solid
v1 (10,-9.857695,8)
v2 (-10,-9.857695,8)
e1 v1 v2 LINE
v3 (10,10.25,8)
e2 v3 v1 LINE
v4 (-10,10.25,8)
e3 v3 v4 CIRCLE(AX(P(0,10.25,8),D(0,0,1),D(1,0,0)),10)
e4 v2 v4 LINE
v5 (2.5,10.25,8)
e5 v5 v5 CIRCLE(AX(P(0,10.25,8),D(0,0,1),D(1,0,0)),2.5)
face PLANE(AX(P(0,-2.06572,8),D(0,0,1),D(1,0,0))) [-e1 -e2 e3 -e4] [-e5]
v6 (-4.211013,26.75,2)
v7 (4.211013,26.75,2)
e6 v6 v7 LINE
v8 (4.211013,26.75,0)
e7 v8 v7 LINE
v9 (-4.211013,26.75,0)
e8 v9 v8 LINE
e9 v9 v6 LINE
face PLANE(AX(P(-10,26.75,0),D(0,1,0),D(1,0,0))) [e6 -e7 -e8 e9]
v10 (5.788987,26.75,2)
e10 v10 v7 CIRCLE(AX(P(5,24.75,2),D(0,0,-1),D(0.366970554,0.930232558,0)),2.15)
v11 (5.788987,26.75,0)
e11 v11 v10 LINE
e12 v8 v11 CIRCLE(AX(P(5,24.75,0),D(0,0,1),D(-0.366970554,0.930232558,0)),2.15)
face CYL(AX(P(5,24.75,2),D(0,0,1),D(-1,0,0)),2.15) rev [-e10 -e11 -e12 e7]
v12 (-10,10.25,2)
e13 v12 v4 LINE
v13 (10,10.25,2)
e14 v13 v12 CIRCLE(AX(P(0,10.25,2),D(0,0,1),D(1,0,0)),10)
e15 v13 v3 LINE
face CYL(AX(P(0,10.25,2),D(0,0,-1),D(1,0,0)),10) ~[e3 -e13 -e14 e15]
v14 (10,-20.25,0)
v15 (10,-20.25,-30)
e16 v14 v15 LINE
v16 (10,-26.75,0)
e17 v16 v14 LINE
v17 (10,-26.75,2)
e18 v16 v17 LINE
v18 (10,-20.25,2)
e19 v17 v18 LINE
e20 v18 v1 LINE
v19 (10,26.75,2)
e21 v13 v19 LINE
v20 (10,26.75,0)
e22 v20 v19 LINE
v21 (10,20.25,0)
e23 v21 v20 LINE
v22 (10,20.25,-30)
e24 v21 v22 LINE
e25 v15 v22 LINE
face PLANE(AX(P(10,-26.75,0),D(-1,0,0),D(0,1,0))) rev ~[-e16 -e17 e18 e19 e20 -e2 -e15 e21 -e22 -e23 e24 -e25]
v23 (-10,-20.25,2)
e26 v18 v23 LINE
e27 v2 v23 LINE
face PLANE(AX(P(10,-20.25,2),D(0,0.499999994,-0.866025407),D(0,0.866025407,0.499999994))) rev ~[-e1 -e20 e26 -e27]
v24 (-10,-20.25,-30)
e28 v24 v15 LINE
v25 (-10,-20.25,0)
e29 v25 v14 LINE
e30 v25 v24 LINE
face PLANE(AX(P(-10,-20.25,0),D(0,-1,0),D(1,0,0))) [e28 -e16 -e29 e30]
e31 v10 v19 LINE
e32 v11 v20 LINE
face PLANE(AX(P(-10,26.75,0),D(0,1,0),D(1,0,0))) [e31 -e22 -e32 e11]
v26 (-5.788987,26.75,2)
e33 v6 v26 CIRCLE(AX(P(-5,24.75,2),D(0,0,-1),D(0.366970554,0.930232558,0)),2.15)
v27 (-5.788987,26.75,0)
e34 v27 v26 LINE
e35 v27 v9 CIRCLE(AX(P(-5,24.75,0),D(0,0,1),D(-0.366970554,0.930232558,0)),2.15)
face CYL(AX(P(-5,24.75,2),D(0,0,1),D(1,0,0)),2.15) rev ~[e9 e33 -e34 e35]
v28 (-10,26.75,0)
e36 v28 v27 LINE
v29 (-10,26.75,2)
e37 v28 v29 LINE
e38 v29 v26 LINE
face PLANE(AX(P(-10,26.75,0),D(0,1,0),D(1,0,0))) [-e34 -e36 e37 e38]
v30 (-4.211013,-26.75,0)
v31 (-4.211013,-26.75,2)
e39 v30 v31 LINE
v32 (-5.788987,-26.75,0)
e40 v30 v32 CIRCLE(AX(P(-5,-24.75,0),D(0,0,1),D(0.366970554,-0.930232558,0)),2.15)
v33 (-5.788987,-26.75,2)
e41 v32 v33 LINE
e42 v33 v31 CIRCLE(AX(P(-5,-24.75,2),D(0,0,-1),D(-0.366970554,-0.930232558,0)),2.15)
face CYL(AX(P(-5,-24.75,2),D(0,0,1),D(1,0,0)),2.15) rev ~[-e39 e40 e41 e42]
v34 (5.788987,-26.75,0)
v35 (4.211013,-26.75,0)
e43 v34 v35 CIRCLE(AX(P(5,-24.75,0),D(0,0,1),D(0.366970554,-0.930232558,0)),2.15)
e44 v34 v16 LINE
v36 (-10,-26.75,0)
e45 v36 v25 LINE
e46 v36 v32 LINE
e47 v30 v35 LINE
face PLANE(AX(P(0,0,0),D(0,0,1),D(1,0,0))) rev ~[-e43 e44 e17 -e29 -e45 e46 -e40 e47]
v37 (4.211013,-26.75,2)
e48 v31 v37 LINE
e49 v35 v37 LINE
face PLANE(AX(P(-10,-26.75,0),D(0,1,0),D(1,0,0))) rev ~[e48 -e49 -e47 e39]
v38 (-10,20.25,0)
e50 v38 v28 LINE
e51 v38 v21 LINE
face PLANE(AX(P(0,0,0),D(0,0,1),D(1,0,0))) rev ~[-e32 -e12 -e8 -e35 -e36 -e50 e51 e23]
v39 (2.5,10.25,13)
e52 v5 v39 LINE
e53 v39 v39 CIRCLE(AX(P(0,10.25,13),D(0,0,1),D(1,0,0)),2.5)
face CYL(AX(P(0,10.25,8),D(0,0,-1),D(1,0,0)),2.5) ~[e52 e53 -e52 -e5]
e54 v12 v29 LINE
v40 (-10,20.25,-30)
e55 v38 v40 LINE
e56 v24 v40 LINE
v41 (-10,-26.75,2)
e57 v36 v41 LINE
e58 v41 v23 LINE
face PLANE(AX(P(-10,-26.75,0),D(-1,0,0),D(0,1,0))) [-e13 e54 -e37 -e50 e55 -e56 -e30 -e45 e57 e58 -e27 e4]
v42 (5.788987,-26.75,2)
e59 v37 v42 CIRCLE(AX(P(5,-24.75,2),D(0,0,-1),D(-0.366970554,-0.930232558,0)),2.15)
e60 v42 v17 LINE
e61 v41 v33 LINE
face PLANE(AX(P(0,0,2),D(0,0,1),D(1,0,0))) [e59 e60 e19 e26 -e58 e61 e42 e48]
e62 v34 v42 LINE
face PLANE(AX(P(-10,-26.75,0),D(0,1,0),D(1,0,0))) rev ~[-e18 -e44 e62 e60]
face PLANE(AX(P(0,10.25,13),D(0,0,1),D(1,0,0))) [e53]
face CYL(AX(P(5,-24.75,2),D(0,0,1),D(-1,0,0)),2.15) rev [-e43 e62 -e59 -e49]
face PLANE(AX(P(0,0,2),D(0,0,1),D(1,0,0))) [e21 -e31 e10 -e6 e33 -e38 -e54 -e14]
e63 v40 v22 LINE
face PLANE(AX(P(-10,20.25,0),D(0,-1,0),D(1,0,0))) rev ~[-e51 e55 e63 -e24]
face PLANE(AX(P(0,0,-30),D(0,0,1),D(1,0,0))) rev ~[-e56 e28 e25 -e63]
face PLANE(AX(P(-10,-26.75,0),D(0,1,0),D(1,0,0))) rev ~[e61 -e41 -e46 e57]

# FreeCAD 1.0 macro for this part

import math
import FreeCAD as App
import Part
import Sketcher
Q = App.Units.Quantity


def add_polygon(sketch, points):
    """Adds a closed chain of lines whose ends are joined by coincident constraints."""
    first, n = sketch.GeometryCount, len(points)
    for a, b in zip(points, points[1:] + points[:1]):
        sketch.addGeometry(Part.LineSegment(App.Vector(*a, 0), App.Vector(*b, 0)), False)
    for i in range(n):
        sketch.addConstraint(Sketcher.Constraint("Coincident", first + i, 2, first + (i + 1) % n, 1))

doc = App.newDocument("Part")
body = doc.addObject("PartDesign::Body", "Body")

sketch1 = body.newObject("Sketcher::SketchObject", "Sketch")
sketch1.AttachmentSupport = (doc.getObject("XY_Plane"), [""])
sketch1.MapMode = "FlatFace"
add_polygon(sketch1, [(-10, 20), (-10, -20), (10, -20), (10, 20)])
sketch1.addConstraint([
    Sketcher.Constraint("Vertical", 0),
    Sketcher.Constraint("Horizontal", 1),
    Sketcher.Constraint("Vertical", 2),
    Sketcher.Constraint("Horizontal", 3),
    Sketcher.Constraint("Symmetric", 0, 2, 2, 2, -1, 1),
    Sketcher.Constraint("DistanceX", 1, 1, 1, 2, 20.0),
    Sketcher.Constraint("DistanceY", 0, 2, 0, 1, 40.5),
])
pad1 = body.newObject("PartDesign::Pad", "Pad")
pad1.Profile = sketch1
pad1.Length = 30
pad1.Reversed = True

sketch2 = body.newObject("Sketcher::SketchObject", "Sketch001")
sketch2.AttachmentSupport = (doc.getObject("XY_Plane"), [""])
sketch2.MapMode = "FlatFace"
add_polygon(sketch2, [(-10, 27), (-10, -27), (10, -27), (10, 27)])
sketch2.addConstraint([
    Sketcher.Constraint("Vertical", 0),
    Sketcher.Constraint("Horizontal", 1),
    Sketcher.Constraint("Vertical", 2),
    Sketcher.Constraint("Horizontal", 3),
    Sketcher.Constraint("Symmetric", 0, 2, 2, 2, -1, 1),
    Sketcher.Constraint("DistanceX", 1, 1, 1, 2, 20.0),
    Sketcher.Constraint("DistanceY", 0, 2, 0, 1, 53.5),
])
pad2 = body.newObject("PartDesign::Pad", "Pad001")
pad2.Profile = sketch2
pad2.Length = 2

sketch3 = body.newObject("Sketcher::SketchObject", "Sketch002")
sketch3.AttachmentSupport = (doc.getObject("XY_Plane"), [""])
sketch3.MapMode = "FlatFace"
sketch3.AttachmentOffset = App.Placement(App.Vector(0, 0, 2), App.Rotation())
sketch3.addGeometry([
    Part.Circle(App.Vector(-5, -24.8, 0), App.Vector(0, 0, 1), 2.1),
    Part.Circle(App.Vector(-5, 24.8, 0), App.Vector(0, 0, 1), 2.1),
], False)
sketch3.addConstraint([
    Sketcher.Constraint("Equal", 0, 1),
    Sketcher.Constraint("Symmetric", 0, 3, 1, 3, -1),
    Sketcher.Constraint("Diameter", 0, 4.3),
    Sketcher.Constraint("DistanceX", 0, 3, -1, 1, 5.0),
    Sketcher.Constraint("DistanceY", 0, 3, 1, 3, 49.5),
])
pocket1 = body.newObject("PartDesign::Pocket", "Pocket")
pocket1.Profile = sketch3
pocket1.Type = "ThroughAll"
doc.recompute()

mirrored = body.newObject("PartDesign::Mirrored", "Mirrored")
mirrored.Originals = [pocket1]
mirrored.MirrorPlane = (doc.getObject("YZ_Plane"), [""])
body.Tip = mirrored

sketch4 = body.newObject("Sketcher::SketchObject", "Sketch003")
sketch4.AttachmentSupport = (doc.getObject("XY_Plane"), [""])
sketch4.MapMode = "FlatFace"
sketch4.AttachmentOffset = App.Placement(App.Vector(0, 0, 2), App.Rotation())
sketch4.addGeometry([
    Part.ArcOfCircle(Part.Circle(App.Vector(0, 10, 0), App.Vector(0, 0, 1), 10), math.radians(0), math.radians(180)),
    Part.LineSegment(App.Vector(-10, 10, 0), App.Vector(-10, -20, 0)),
    Part.LineSegment(App.Vector(-10, -20, 0), App.Vector(10, -20, 0)),
    Part.LineSegment(App.Vector(10, -20, 0), App.Vector(10, 10, 0)),
], False)
sketch4.addConstraint([
    Sketcher.Constraint("Tangent", 0, 2, 1, 1),
    Sketcher.Constraint("Coincident", 1, 2, 2, 1),
    Sketcher.Constraint("Coincident", 2, 2, 3, 1),
    Sketcher.Constraint("Tangent", 3, 2, 0, 1),
    Sketcher.Constraint("Vertical", 1),
    Sketcher.Constraint("Horizontal", 2),
    Sketcher.Constraint("Vertical", 3),
    Sketcher.Constraint("PointOnObject", 0, 3, -2),
    Sketcher.Constraint("Radius", 0, 10.0),
    Sketcher.Constraint("DistanceY", 1, 2, 1, 1, 30.5),
    Sketcher.Constraint("DistanceY", -1, 1, 0, 3, 10.25),
])
pad3 = body.newObject("PartDesign::Pad", "Pad002")
pad3.Profile = sketch4
pad3.Length = 6

sketch5 = body.newObject("Sketcher::SketchObject", "Sketch004")
sketch5.AttachmentSupport = (doc.getObject("XY_Plane"), [""])
sketch5.MapMode = "FlatFace"
sketch5.AttachmentOffset = App.Placement(App.Vector(0, 0, 8), App.Rotation())
sketch5.addGeometry(Part.Circle(App.Vector(0, 10.2, 0), App.Vector(0, 0, 1), 2.5), False)
sketch5.addConstraint([
    Sketcher.Constraint("PointOnObject", 0, 3, -2),
    Sketcher.Constraint("Diameter", 0, 5.0),
    Sketcher.Constraint("DistanceY", -1, 1, 0, 3, 10.25),
])
pad4 = body.newObject("PartDesign::Pad", "Pad003")
pad4.Profile = sketch5
pad4.Length = 5

sketch6 = body.newObject("Sketcher::SketchObject", "Sketch005")
sketch6.AttachmentSupport = (doc.getObject("YZ_Plane"), [""])
sketch6.MapMode = "FlatFace"
sketch6.AttachmentOffset = App.Placement(App.Vector(0, 0, 10), App.Rotation())
add_polygon(sketch6, [(-20, 2), (-10, 8), (-20, 8)])
sketch6.addConstraint([
    Sketcher.Constraint("Horizontal", 1),
    Sketcher.Constraint("Vertical", 2),
    Sketcher.Constraint("DistanceY", 2, 2, 2, 1, 6.0),
    Sketcher.Constraint("Angle", 0, Q("30 deg")),
    Sketcher.Constraint("DistanceY", -1, 1, 0, 2, 8.0),
    Sketcher.Constraint("DistanceX", 1, 2, -1, 1, 20.25),
])
pocket2 = body.newObject("PartDesign::Pocket", "Pocket001")
pocket2.Profile = sketch6
pocket2.Type = "ThroughAll"

doc.recompute()
